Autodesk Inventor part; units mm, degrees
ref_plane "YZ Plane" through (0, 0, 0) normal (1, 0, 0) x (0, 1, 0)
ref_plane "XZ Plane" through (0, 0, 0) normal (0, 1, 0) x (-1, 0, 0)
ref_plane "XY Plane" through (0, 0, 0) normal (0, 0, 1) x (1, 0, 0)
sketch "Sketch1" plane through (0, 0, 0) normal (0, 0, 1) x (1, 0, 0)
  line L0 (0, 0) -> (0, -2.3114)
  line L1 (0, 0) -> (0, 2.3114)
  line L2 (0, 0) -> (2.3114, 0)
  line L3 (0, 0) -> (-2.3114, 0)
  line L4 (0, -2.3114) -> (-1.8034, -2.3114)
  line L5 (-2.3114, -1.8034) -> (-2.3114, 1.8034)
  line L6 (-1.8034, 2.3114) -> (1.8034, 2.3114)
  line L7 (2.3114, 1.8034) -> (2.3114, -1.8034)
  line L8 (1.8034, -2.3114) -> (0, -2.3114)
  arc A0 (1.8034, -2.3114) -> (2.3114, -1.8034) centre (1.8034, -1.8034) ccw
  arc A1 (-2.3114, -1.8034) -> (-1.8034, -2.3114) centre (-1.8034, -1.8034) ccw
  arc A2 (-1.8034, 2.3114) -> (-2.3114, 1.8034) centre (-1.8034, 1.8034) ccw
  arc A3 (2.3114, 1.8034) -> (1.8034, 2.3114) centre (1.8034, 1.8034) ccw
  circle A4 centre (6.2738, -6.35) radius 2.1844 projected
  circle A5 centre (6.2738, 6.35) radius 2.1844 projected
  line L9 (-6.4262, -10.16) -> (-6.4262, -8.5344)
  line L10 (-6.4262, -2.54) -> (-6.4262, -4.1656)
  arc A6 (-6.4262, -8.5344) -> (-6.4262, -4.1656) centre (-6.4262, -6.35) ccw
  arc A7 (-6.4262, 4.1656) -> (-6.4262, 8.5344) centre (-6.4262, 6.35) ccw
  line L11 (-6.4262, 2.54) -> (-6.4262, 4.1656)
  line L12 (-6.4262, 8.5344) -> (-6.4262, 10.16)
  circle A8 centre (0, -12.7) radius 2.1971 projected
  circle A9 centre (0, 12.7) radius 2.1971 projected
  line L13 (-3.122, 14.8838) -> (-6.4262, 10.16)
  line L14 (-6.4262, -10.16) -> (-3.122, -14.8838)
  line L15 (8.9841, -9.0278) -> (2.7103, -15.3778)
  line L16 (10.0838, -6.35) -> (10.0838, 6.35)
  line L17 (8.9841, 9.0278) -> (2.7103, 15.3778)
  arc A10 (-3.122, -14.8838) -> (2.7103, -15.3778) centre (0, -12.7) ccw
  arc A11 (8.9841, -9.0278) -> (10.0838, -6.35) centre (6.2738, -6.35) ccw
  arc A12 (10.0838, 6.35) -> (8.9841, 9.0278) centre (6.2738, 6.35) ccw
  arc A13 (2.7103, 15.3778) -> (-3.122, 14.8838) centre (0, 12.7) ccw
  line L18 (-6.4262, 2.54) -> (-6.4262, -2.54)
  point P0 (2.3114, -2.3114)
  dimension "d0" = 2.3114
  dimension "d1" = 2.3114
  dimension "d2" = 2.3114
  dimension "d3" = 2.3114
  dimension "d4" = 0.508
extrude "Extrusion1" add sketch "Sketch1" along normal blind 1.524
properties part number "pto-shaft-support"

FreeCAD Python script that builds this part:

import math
import FreeCAD as App
import Part
import Sketcher
Q = App.Units.Quantity

doc = App.newDocument("Part")
body = doc.addObject("PartDesign::Body", "Body")

# Sketch on XY plane
sketch1 = doc.addObject("Sketcher::SketchObject", "Sketch")
body.addObject(sketch1)
sketch1.AttachmentSupport = (doc.XY_Plane, [""])
sketch1.MapMode = "FlatFace"
sketch1.addGeometry([
    Part.LineSegment(App.Vector(-6.4, -8.5, 0), App.Vector(-6.4, -10.2, 0)),  # 0
    Part.LineSegment(App.Vector(-6.4, -10.2, 0), App.Vector(-3.1, -14.9, 0)),  # 1
    Part.ArcOfCircle(Part.Circle(App.Vector(0, -12.7, 0), App.Vector(0, 0, 1), 3.8), math.radians(-145), math.radians(-45)),  # 2
    Part.LineSegment(App.Vector(2.7, -15.4, 0), App.Vector(9, -9, 0)),  # 3
    Part.ArcOfCircle(Part.Circle(App.Vector(6.3, -6.3, 0), App.Vector(0, 0, 1), 3.8), math.radians(-45), math.radians(0)),  # 4
    Part.LineSegment(App.Vector(10.1, -6.3, 0), App.Vector(10.1, 6.3, 0)),  # 5
    Part.ArcOfCircle(Part.Circle(App.Vector(6.3, 6.3, 0), App.Vector(0, 0, 1), 3.8), math.radians(0), math.radians(45)),  # 6
    Part.LineSegment(App.Vector(9, 9, 0), App.Vector(2.7, 15.4, 0)),  # 7
    Part.ArcOfCircle(Part.Circle(App.Vector(0, 12.7, 0), App.Vector(0, 0, 1), 3.8), math.radians(45), math.radians(145)),  # 8
    Part.LineSegment(App.Vector(-3.1, 14.9, 0), App.Vector(-6.4, 10.2, 0)),  # 9
    Part.LineSegment(App.Vector(-6.4, 10.2, 0), App.Vector(-6.4, 8.5, 0)),  # 10
    Part.ArcOfCircle(Part.Circle(App.Vector(-6.4, 6.3, 0), App.Vector(0, 0, 1), 2.2), math.radians(-90), math.radians(90)),  # 11
    Part.LineSegment(App.Vector(-6.4, 4.2, 0), App.Vector(-6.4, -4.2, 0)),  # 12
    Part.ArcOfCircle(Part.Circle(App.Vector(-6.4, -6.3, 0), App.Vector(0, 0, 1), 2.2), math.radians(-90), math.radians(90)),  # 13
    Part.Circle(App.Vector(0, -12.7, 0), App.Vector(0, 0, 1), 2.2),  # 14
    Part.LineSegment(App.Vector(1.8, -2.3, 0), App.Vector(-1.8, -2.3, 0)),  # 15
    Part.ArcOfCircle(Part.Circle(App.Vector(-1.8, -1.8, 0), App.Vector(0, 0, 1), 0.5), math.radians(180), math.radians(270)),  # 16
    Part.LineSegment(App.Vector(-2.3, -1.8, 0), App.Vector(-2.3, 1.8, 0)),  # 17
    Part.ArcOfCircle(Part.Circle(App.Vector(-1.8, 1.8, 0), App.Vector(0, 0, 1), 0.5), math.radians(90), math.radians(180)),  # 18
    Part.LineSegment(App.Vector(-1.8, 2.3, 0), App.Vector(1.8, 2.3, 0)),  # 19
    Part.ArcOfCircle(Part.Circle(App.Vector(1.8, 1.8, 0), App.Vector(0, 0, 1), 0.5), math.radians(0), math.radians(90)),  # 20
    Part.LineSegment(App.Vector(2.3, 1.8, 0), App.Vector(2.3, -1.8, 0)),  # 21
    Part.ArcOfCircle(Part.Circle(App.Vector(1.8, -1.8, 0), App.Vector(0, 0, 1), 0.5), math.radians(-90), math.radians(0)),  # 22
    Part.Circle(App.Vector(6.3, -6.3, 0), App.Vector(0, 0, 1), 2.2),  # 23
    Part.Circle(App.Vector(0, 12.7, 0), App.Vector(0, 0, 1), 2.2),  # 24
    Part.Circle(App.Vector(6.3, 6.3, 0), App.Vector(0, 0, 1), 2.2),  # 25
], False)
sketch1.addConstraint([
    Sketcher.Constraint("Coincident", 0, 2, 1, 1),
    Sketcher.Constraint("Tangent", 1, 2, 2, 1),
    Sketcher.Constraint("Tangent", 2, 2, 3, 1),
    Sketcher.Constraint("Tangent", 3, 2, 4, 1),
    Sketcher.Constraint("Tangent", 4, 2, 5, 1),
    Sketcher.Constraint("Tangent", 5, 2, 6, 1),
    Sketcher.Constraint("Tangent", 6, 2, 7, 1),
    Sketcher.Constraint("Tangent", 7, 2, 8, 1),
    Sketcher.Constraint("Tangent", 8, 2, 9, 1),
    Sketcher.Constraint("Coincident", 9, 2, 10, 1),
    Sketcher.Constraint("Coincident", 10, 2, 11, 2),
    Sketcher.Constraint("Coincident", 11, 1, 12, 1),
    Sketcher.Constraint("Coincident", 12, 2, 13, 2),
    Sketcher.Constraint("Coincident", 13, 1, 0, 1),
    Sketcher.Constraint("Tangent", 15, 2, 16, 2),
    Sketcher.Constraint("Tangent", 16, 1, 17, 1),
    Sketcher.Constraint("Tangent", 17, 2, 18, 2),
    Sketcher.Constraint("Tangent", 18, 1, 19, 1),
    Sketcher.Constraint("Tangent", 19, 2, 20, 2),
    Sketcher.Constraint("Tangent", 20, 1, 21, 1),
    Sketcher.Constraint("Tangent", 21, 2, 22, 2),
    Sketcher.Constraint("Tangent", 22, 1, 15, 1),
    Sketcher.Constraint("Vertical", 0),
    Sketcher.Constraint("Vertical", 5),
    Sketcher.Constraint("Vertical", 10),
    Sketcher.Constraint("Vertical", 12),
    Sketcher.Constraint("Horizontal", 15),
    Sketcher.Constraint("Vertical", 17),
    Sketcher.Constraint("Horizontal", 19),
    Sketcher.Constraint("Vertical", 21),
    Sketcher.Constraint("Coincident", 14, 3, 2, 3),
    Sketcher.Constraint("Coincident", 23, 3, 4, 3),
    Sketcher.Constraint("Coincident", 24, 3, 8, 3),
    Sketcher.Constraint("Coincident", 25, 3, 6, 3),
    Sketcher.Constraint("Equal", 2, 4),
    Sketcher.Constraint("Equal", 4, 6),
    Sketcher.Constraint("Equal", 6, 8),
    Sketcher.Constraint("Equal", 11, 13),
    Sketcher.Constraint("Equal", 16, 18),
    Sketcher.Constraint("Equal", 18, 20),
    Sketcher.Constraint("Equal", 20, 22),
    Sketcher.Constraint("Equal", 13, 23),
    Sketcher.Constraint("Equal", 14, 24),
    Sketcher.Constraint("Equal", 23, 25),
    Sketcher.Constraint("Symmetric", 2, 3, 8, 3, -1, 1),
    Sketcher.Constraint("Symmetric", 16, 3, 20, 3, -1, 1),
    Sketcher.Constraint("Symmetric", 11, 3, 13, 3, -1),
    Sketcher.Constraint("Symmetric", 3, 2, 6, 2, -1),
    Sketcher.Constraint("Symmetric", 0, 2, 9, 2, -1),
    Sketcher.Constraint("Horizontal", 6, 3, 11, 3),
    Sketcher.Constraint("Vertical", 13, 3, 0, 2),
    Sketcher.Constraint("Vertical", 10, 2, 11, 1),
    Sketcher.Constraint("Equal", 19, 17),
    Sketcher.Constraint("Radius", 16, Q("0.02 in")),
    Sketcher.Constraint("Radius", 2, Q("0.15 in")),
    Sketcher.Constraint("Diameter", 14, Q("0.173 in")),
    Sketcher.Constraint("Diameter", 23, Q("0.172 in")),
    Sketcher.Constraint("DistanceY", 5, 1, 5, 2, Q("0.5 in")),
    Sketcher.Constraint("DistanceY", 15, 2, -1, 1, Q("0.091 in")),
    Sketcher.Constraint("DistanceY", 2, 3, 8, 3, Q("1 in")),
    Sketcher.Constraint("DistanceY", 0, 2, -1, 1, Q("0.4 in")),
    Sketcher.Constraint("DistanceX", 11, 3, 6, 3, Q("0.5 in")),
    Sketcher.Constraint("DistanceX", -1, 1, 4, 3, Q("0.247 in")),
])
pad1 = doc.addObject("PartDesign::Pad", "Pad")
body.addObject(pad1)
pad1.Profile = sketch1
pad1.Length = Q("0.06 in")

doc.recompute()
